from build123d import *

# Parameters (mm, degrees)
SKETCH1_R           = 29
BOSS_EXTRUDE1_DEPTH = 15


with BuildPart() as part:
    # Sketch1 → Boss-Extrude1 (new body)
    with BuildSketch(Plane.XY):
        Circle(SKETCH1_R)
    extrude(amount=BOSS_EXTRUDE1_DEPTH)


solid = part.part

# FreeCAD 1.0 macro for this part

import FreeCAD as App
import Part
import Sketcher
from FreeCAD import Vector
Q = App.Units.Quantity

doc = App.newDocument("Part")
body = doc.addObject("PartDesign::Body", "Body")

# Sketch on XY plane
sketch1 = body.newObject("Sketcher::SketchObject", "Sketch")
sketch1.AttachmentSupport = (doc.getObject("XY_Plane"), [""])
sketch1.MapMode = "FlatFace"
sketch1.addGeometry(Part.Circle(Vector(0, 0, 0), Vector(0, 0, 1), 29), False)
sketch1.addConstraint([
    Sketcher.Constraint("Coincident", 0, 3, -1, 1),
    Sketcher.Constraint("Diameter", 0, Q("58 mm")),
])
pad1 = body.newObject("PartDesign::Pad", "Pad")
pad1.Profile = sketch1
pad1.Length = 15

doc.recompute()
